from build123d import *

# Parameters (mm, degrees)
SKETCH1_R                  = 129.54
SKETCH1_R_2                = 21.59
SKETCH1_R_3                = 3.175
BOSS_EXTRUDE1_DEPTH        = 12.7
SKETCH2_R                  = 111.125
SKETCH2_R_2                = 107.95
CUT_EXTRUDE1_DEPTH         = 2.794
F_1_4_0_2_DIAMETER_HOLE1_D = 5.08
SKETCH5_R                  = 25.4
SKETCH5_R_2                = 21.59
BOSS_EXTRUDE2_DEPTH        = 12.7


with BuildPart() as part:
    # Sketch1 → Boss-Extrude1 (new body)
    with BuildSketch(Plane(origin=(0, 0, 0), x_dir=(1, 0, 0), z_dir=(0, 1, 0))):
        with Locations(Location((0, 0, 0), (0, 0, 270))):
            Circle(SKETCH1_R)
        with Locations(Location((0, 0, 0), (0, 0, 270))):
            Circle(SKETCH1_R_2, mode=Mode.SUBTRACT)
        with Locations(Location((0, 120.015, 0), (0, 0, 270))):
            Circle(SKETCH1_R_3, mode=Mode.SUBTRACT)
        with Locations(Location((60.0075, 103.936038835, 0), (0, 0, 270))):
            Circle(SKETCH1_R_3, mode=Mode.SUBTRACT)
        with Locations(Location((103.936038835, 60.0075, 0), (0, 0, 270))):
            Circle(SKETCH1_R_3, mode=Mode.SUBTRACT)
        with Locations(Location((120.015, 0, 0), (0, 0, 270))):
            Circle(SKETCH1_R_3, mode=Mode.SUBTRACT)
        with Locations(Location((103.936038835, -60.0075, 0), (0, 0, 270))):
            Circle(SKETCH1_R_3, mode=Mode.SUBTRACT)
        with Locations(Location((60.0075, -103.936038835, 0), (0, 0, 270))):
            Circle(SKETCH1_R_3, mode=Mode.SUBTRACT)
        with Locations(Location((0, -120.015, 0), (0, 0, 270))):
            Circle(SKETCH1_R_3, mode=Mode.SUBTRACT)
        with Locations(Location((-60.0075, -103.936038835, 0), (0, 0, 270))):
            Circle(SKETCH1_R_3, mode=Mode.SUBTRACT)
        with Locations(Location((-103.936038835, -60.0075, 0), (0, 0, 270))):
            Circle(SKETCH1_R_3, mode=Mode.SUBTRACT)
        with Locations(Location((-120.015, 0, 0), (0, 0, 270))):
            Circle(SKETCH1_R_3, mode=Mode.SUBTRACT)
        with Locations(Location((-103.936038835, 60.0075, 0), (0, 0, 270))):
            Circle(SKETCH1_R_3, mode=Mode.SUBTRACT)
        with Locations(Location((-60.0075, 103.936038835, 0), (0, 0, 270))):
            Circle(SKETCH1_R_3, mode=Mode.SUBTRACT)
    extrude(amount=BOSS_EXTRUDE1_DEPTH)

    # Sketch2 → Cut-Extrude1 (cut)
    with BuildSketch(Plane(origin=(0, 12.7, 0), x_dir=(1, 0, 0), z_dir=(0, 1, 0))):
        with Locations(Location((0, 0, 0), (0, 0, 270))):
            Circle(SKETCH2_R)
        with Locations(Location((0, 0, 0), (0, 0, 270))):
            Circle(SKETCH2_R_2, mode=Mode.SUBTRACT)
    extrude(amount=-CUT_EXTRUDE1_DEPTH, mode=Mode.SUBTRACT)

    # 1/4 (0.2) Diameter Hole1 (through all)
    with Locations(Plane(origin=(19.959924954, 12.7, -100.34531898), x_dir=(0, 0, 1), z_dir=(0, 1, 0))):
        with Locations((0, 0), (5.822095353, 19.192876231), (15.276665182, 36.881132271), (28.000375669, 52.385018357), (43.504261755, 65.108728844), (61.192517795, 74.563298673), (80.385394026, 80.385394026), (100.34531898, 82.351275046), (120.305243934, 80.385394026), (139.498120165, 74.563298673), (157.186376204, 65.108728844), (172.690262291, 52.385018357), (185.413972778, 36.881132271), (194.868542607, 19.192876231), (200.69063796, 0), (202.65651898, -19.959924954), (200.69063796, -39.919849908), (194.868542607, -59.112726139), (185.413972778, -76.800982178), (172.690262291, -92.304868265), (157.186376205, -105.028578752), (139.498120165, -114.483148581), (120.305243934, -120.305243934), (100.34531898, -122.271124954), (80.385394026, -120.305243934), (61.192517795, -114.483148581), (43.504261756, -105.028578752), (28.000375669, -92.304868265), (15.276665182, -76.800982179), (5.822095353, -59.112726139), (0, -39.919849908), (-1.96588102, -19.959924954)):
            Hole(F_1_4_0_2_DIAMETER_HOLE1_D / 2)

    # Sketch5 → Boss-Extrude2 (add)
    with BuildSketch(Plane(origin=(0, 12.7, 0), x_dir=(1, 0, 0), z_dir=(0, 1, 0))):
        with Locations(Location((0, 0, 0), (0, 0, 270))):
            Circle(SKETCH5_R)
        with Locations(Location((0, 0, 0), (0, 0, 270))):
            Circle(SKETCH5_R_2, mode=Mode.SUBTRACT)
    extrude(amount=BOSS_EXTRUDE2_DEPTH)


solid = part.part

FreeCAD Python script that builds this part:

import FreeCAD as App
import Part
import Sketcher
Q = App.Units.Quantity

doc = App.newDocument("Part")
params = doc.addObject("Spreadsheet::Sheet", "Params")
for row, (alias, value) in enumerate([
    ("sketch1_diameter", "10.2 in"),
    ("sketch1_diameter2", "1.7 in"),
    ("sketch1_diameter3", "0.25 in"),
    ("pad1_length", "0.5 in"),
    ("sketch2_diameter", "8.5 in"),
    ("sketch2_diameter2", "8.75 in"),
    ("pocket1_length", "0.11 in"),
    ("sketch3_diameter", "0.2 in"),
    ("hole_diameter", "0.2 in"),
    ("sketch4_diameter", "2 in"),
    ("sketch4_diameter2", "1.7 in"),
    ("pad2_length", "0.5 in"),
], start=1):
    params.set(f"A{row}", alias)
    params.set(f"B{row}", "=" + value)
    params.setAlias(f"B{row}", alias)

body = doc.addObject("PartDesign::Body", "Body")

sketch1 = body.newObject("Sketcher::SketchObject", "Sketch")
sketch1.AttachmentSupport = (doc.getObject("XZ_Plane"), [""])
sketch1.MapMode = "FlatFace"
sketch1.addGeometry(Part.Circle(App.Vector(0, 0, 0), App.Vector(0, 0, 1), 129.5), False)
sketch1.addGeometry(Part.Circle(App.Vector(-103.9, -60, 0), App.Vector(0, 0, 1), 3.2), False)
sketch1.addGeometry(Part.Circle(App.Vector(-60, -103.9, 0), App.Vector(0, 0, 1), 3.2), False)
sketch1.addGeometry(Part.Circle(App.Vector(0, -120, 0), App.Vector(0, 0, 1), 3.2), False)
sketch1.addGeometry(Part.Circle(App.Vector(-120, 0, 0), App.Vector(0, 0, 1), 3.2), False)
sketch1.addGeometry(Part.Circle(App.Vector(-103.9, 60, 0), App.Vector(0, 0, 1), 3.2), False)
sketch1.addGeometry(Part.Circle(App.Vector(-60, 103.9, 0), App.Vector(0, 0, 1), 3.2), False)
sketch1.addGeometry(Part.Circle(App.Vector(60, -103.9, 0), App.Vector(0, 0, 1), 3.2), False)
sketch1.addGeometry(Part.Circle(App.Vector(103.9, -60, 0), App.Vector(0, 0, 1), 3.2), False)
sketch1.addGeometry(Part.Circle(App.Vector(120, 0, 0), App.Vector(0, 0, 1), 3.2), False)
sketch1.addGeometry(Part.Circle(App.Vector(0, 0, 0), App.Vector(0, 0, 1), 21.6), False)
sketch1.addGeometry(Part.Circle(App.Vector(0, 120, 0), App.Vector(0, 0, 1), 3.2), False)
sketch1.addGeometry(Part.Circle(App.Vector(60, 103.9, 0), App.Vector(0, 0, 1), 3.2), False)
sketch1.addGeometry(Part.Circle(App.Vector(103.9, 60, 0), App.Vector(0, 0, 1), 3.2), False)
sketch1.addConstraint(Sketcher.Constraint("Coincident", 0, 3, -1, 1))
sketch1.addConstraint(Sketcher.Constraint("Coincident", 10, 3, -1, 1))
sketch1.addConstraint(Sketcher.Constraint("Equal", 1, 2))
sketch1.addConstraint(Sketcher.Constraint("Equal", 2, 3))
sketch1.addConstraint(Sketcher.Constraint("Equal", 3, 4))
sketch1.addConstraint(Sketcher.Constraint("Equal", 4, 5))
sketch1.addConstraint(Sketcher.Constraint("Equal", 5, 6))
sketch1.addConstraint(Sketcher.Constraint("Equal", 6, 7))
sketch1.addConstraint(Sketcher.Constraint("Equal", 7, 8))
sketch1.addConstraint(Sketcher.Constraint("Equal", 8, 9))
sketch1.addConstraint(Sketcher.Constraint("Equal", 9, 11))
sketch1.addConstraint(Sketcher.Constraint("Equal", 11, 12))
sketch1.addConstraint(Sketcher.Constraint("Equal", 12, 13))
sketch1.addConstraint(Sketcher.Constraint("Symmetric", 6, 3, 7, 3, -1, 1))
sketch1.addConstraint(Sketcher.Constraint("Symmetric", 5, 3, 8, 3, -1, 1))
sketch1.addConstraint(Sketcher.Constraint("Symmetric", 4, 3, 9, 3, -1, 1))
sketch1.addConstraint(Sketcher.Constraint("Symmetric", 3, 3, 11, 3, -1, 1))
sketch1.addConstraint(Sketcher.Constraint("Symmetric", 2, 3, 12, 3, -1, 1))
sketch1.addConstraint(Sketcher.Constraint("Symmetric", 1, 3, 13, 3, -1, 1))
sketch1.addConstraint(Sketcher.Constraint("Symmetric", 2, 3, 7, 3, -2))
sketch1.addConstraint(Sketcher.Constraint("Symmetric", 1, 3, 8, 3, -2))
sketch1.addConstraint(Sketcher.Constraint("PointOnObject", 3, 3, -2))
sketch1.addConstraint(Sketcher.Constraint("PointOnObject", 4, 3, -1))
sketch1.addConstraint(Sketcher.Constraint("Diameter", 0, Q("10.2 in")))
sketch1.addConstraint(Sketcher.Constraint("Diameter", 10, Q("1.7 in")))
sketch1.addConstraint(Sketcher.Constraint("Diameter", 1, Q("0.25 in")))
sketch1.addConstraint(Sketcher.Constraint("DistanceY", 3, 3, -1, 1, Q("4.725 in")))
sketch1.addConstraint(Sketcher.Constraint("DistanceX", 4, 3, -1, 1, Q("4.725 in")))
sketch1.addConstraint(Sketcher.Constraint("DistanceY", 1, 3, 5, 3, Q("4.725 in")))
sketch1.addConstraint(Sketcher.Constraint("DistanceX", 2, 3, 7, 3, Q("4.725 in")))
sketch1.addConstraint(Sketcher.Constraint("DistanceX", 1, 3, -1, 1, 103.936039))
sketch1.addConstraint(Sketcher.Constraint("DistanceY", 2, 3, -1, 1, 103.936039))
sketch1.setExpression("Constraints[23]", "Params.sketch1_diameter")
sketch1.setExpression("Constraints[24]", "Params.sketch1_diameter2")
sketch1.setExpression("Constraints[25]", "Params.sketch1_diameter3")
pad1 = body.newObject("PartDesign::Pad", "Pad")
pad1.Profile = sketch1
pad1.setExpression("Length", "Params.pad1_length")
pad1.Reversed = True

sketch2 = body.newObject("Sketcher::SketchObject", "Sketch001")
sketch2.AttachmentSupport = (doc.getObject("XZ_Plane"), [""])
sketch2.MapMode = "FlatFace"
sketch2.AttachmentOffset = App.Placement(App.Vector(0, 0, -0.5 * 25.4), App.Rotation())
sketch2.addGeometry(Part.Circle(App.Vector(0, 0, 0), App.Vector(0, 0, 1), 111), False)
sketch2.addGeometry(Part.Circle(App.Vector(0, 0, 0), App.Vector(0, 0, 1), 108), False)
sketch2.addConstraint(Sketcher.Constraint("Coincident", 0, 3, -1, 1))
sketch2.addConstraint(Sketcher.Constraint("Coincident", 1, 3, -1, 1))
sketch2.addConstraint(Sketcher.Constraint("Diameter", 1, Q("8.5 in")))
sketch2.addConstraint(Sketcher.Constraint("Diameter", 0, Q("8.75 in")))
sketch2.setExpression("Constraints[2]", "Params.sketch2_diameter")
sketch2.setExpression("Constraints[3]", "Params.sketch2_diameter2")
pocket1 = body.newObject("PartDesign::Pocket", "Pocket")
pocket1.Profile = sketch2
pocket1.setExpression("Length", "Params.pocket1_length")
pocket1.Reversed = True

sketch3 = body.newObject("Sketcher::SketchObject", "Sketch002")
sketch3.AttachmentSupport = (doc.getObject("XZ_Plane"), [""])
sketch3.MapMode = "FlatFace"
sketch3.AttachmentOffset = App.Placement(App.Vector(0, 0, -0.5 * 25.4), App.Rotation())
sketch3.addGeometry(Part.Circle(App.Vector(20, -100.3, 0), App.Vector(0, 0, 1), 2.5), False)
sketch3.addGeometry(Part.Circle(App.Vector(39.2, -94.5, 0), App.Vector(0, 0, 1), 2.5), False)
sketch3.addGeometry(Part.Circle(App.Vector(56.8, -85.1, 0), App.Vector(0, 0, 1), 2.5), False)
sketch3.addGeometry(Part.Circle(App.Vector(72.3, -72.3, 0), App.Vector(0, 0, 1), 2.5), False)
sketch3.addGeometry(Part.Circle(App.Vector(85.1, -56.8, 0), App.Vector(0, 0, 1), 2.5), False)
sketch3.addGeometry(Part.Circle(App.Vector(94.5, -39.2, 0), App.Vector(0, 0, 1), 2.5), False)
sketch3.addGeometry(Part.Circle(App.Vector(100.3, -20, 0), App.Vector(0, 0, 1), 2.5), False)
sketch3.addGeometry(Part.Circle(App.Vector(102.3, 0, 0), App.Vector(0, 0, 1), 2.5), False)
sketch3.addGeometry(Part.Circle(App.Vector(100.3, 20, 0), App.Vector(0, 0, 1), 2.5), False)
sketch3.addGeometry(Part.Circle(App.Vector(94.5, 39.2, 0), App.Vector(0, 0, 1), 2.5), False)
sketch3.addGeometry(Part.Circle(App.Vector(85.1, 56.8, 0), App.Vector(0, 0, 1), 2.5), False)
sketch3.addGeometry(Part.Circle(App.Vector(72.3, 72.3, 0), App.Vector(0, 0, 1), 2.5), False)
sketch3.addGeometry(Part.Circle(App.Vector(56.8, 85.1, 0), App.Vector(0, 0, 1), 2.5), False)
sketch3.addGeometry(Part.Circle(App.Vector(39.2, 94.5, 0), App.Vector(0, 0, 1), 2.5), False)
sketch3.addGeometry(Part.Circle(App.Vector(20, 100.3, 0), App.Vector(0, 0, 1), 2.5), False)
sketch3.addGeometry(Part.Circle(App.Vector(0, 102.3, 0), App.Vector(0, 0, 1), 2.5), False)
sketch3.addGeometry(Part.Circle(App.Vector(-20, 100.3, 0), App.Vector(0, 0, 1), 2.5), False)
sketch3.addGeometry(Part.Circle(App.Vector(-39.2, 94.5, 0), App.Vector(0, 0, 1), 2.5), False)
sketch3.addGeometry(Part.Circle(App.Vector(-56.8, 85.1, 0), App.Vector(0, 0, 1), 2.5), False)
sketch3.addGeometry(Part.Circle(App.Vector(-72.3, 72.3, 0), App.Vector(0, 0, 1), 2.5), False)
sketch3.addGeometry(Part.Circle(App.Vector(-85.1, 56.8, 0), App.Vector(0, 0, 1), 2.5), False)
sketch3.addGeometry(Part.Circle(App.Vector(-94.5, 39.2, 0), App.Vector(0, 0, 1), 2.5), False)
sketch3.addGeometry(Part.Circle(App.Vector(-100.3, 20, 0), App.Vector(0, 0, 1), 2.5), False)
sketch3.addGeometry(Part.Circle(App.Vector(-102.3, 0, 0), App.Vector(0, 0, 1), 2.5), False)
sketch3.addGeometry(Part.Circle(App.Vector(-100.3, -20, 0), App.Vector(0, 0, 1), 2.5), False)
sketch3.addGeometry(Part.Circle(App.Vector(-94.5, -39.2, 0), App.Vector(0, 0, 1), 2.5), False)
sketch3.addGeometry(Part.Circle(App.Vector(-85.1, -56.8, 0), App.Vector(0, 0, 1), 2.5), False)
sketch3.addGeometry(Part.Circle(App.Vector(-72.3, -72.3, 0), App.Vector(0, 0, 1), 2.5), False)
sketch3.addGeometry(Part.Circle(App.Vector(-56.8, -85.1, 0), App.Vector(0, 0, 1), 2.5), False)
sketch3.addGeometry(Part.Circle(App.Vector(-39.2, -94.5, 0), App.Vector(0, 0, 1), 2.5), False)
sketch3.addGeometry(Part.Circle(App.Vector(-20, -100.3, 0), App.Vector(0, 0, 1), 2.5), False)
sketch3.addGeometry(Part.Circle(App.Vector(0, -102.3, 0), App.Vector(0, 0, 1), 2.5), False)
sketch3.addConstraint(Sketcher.Constraint("Equal", 0, 1))
sketch3.addConstraint(Sketcher.Constraint("Equal", 1, 2))
sketch3.addConstraint(Sketcher.Constraint("Equal", 2, 3))
sketch3.addConstraint(Sketcher.Constraint("Equal", 3, 4))
sketch3.addConstraint(Sketcher.Constraint("Equal", 4, 5))
sketch3.addConstraint(Sketcher.Constraint("Equal", 5, 6))
sketch3.addConstraint(Sketcher.Constraint("Equal", 6, 7))
sketch3.addConstraint(Sketcher.Constraint("Equal", 7, 8))
sketch3.addConstraint(Sketcher.Constraint("Equal", 8, 9))
sketch3.addConstraint(Sketcher.Constraint("Equal", 9, 10))
sketch3.addConstraint(Sketcher.Constraint("Equal", 10, 11))
sketch3.addConstraint(Sketcher.Constraint("Equal", 11, 12))
sketch3.addConstraint(Sketcher.Constraint("Equal", 12, 13))
sketch3.addConstraint(Sketcher.Constraint("Equal", 13, 14))
sketch3.addConstraint(Sketcher.Constraint("Equal", 14, 15))
sketch3.addConstraint(Sketcher.Constraint("Equal", 15, 16))
sketch3.addConstraint(Sketcher.Constraint("Equal", 16, 17))
sketch3.addConstraint(Sketcher.Constraint("Equal", 17, 18))
sketch3.addConstraint(Sketcher.Constraint("Equal", 18, 19))
sketch3.addConstraint(Sketcher.Constraint("Equal", 19, 20))
sketch3.addConstraint(Sketcher.Constraint("Equal", 20, 21))
sketch3.addConstraint(Sketcher.Constraint("Equal", 21, 22))
sketch3.addConstraint(Sketcher.Constraint("Equal", 22, 23))
sketch3.addConstraint(Sketcher.Constraint("Equal", 23, 24))
sketch3.addConstraint(Sketcher.Constraint("Equal", 24, 25))
sketch3.addConstraint(Sketcher.Constraint("Equal", 25, 26))
sketch3.addConstraint(Sketcher.Constraint("Equal", 26, 27))
sketch3.addConstraint(Sketcher.Constraint("Equal", 27, 28))
sketch3.addConstraint(Sketcher.Constraint("Equal", 28, 29))
sketch3.addConstraint(Sketcher.Constraint("Equal", 29, 30))
sketch3.addConstraint(Sketcher.Constraint("Equal", 30, 31))
sketch3.addConstraint(Sketcher.Constraint("Symmetric", 0, 3, 16, 3, -1, 1))
sketch3.addConstraint(Sketcher.Constraint("Symmetric", 1, 3, 17, 3, -1, 1))
sketch3.addConstraint(Sketcher.Constraint("Symmetric", 2, 3, 18, 3, -1, 1))
sketch3.addConstraint(Sketcher.Constraint("Symmetric", 3, 3, 19, 3, -1, 1))
sketch3.addConstraint(Sketcher.Constraint("Symmetric", 4, 3, 20, 3, -1, 1))
sketch3.addConstraint(Sketcher.Constraint("Symmetric", 5, 3, 21, 3, -1, 1))
sketch3.addConstraint(Sketcher.Constraint("Symmetric", 6, 3, 22, 3, -1, 1))
sketch3.addConstraint(Sketcher.Constraint("Symmetric", 7, 3, 23, 3, -1, 1))
sketch3.addConstraint(Sketcher.Constraint("Symmetric", 8, 3, 24, 3, -1, 1))
sketch3.addConstraint(Sketcher.Constraint("Symmetric", 9, 3, 25, 3, -1, 1))
sketch3.addConstraint(Sketcher.Constraint("Symmetric", 10, 3, 26, 3, -1, 1))
sketch3.addConstraint(Sketcher.Constraint("Symmetric", 11, 3, 27, 3, -1, 1))
sketch3.addConstraint(Sketcher.Constraint("Symmetric", 12, 3, 28, 3, -1, 1))
sketch3.addConstraint(Sketcher.Constraint("Symmetric", 13, 3, 29, 3, -1, 1))
sketch3.addConstraint(Sketcher.Constraint("Symmetric", 14, 3, 30, 3, -1, 1))
sketch3.addConstraint(Sketcher.Constraint("Symmetric", 15, 3, 31, 3, -1, 1))
sketch3.addConstraint(Sketcher.Constraint("Symmetric", 14, 3, 16, 3, -2))
sketch3.addConstraint(Sketcher.Constraint("Symmetric", 13, 3, 17, 3, -2))
sketch3.addConstraint(Sketcher.Constraint("Symmetric", 12, 3, 18, 3, -2))
sketch3.addConstraint(Sketcher.Constraint("Symmetric", 11, 3, 19, 3, -2))
sketch3.addConstraint(Sketcher.Constraint("Symmetric", 10, 3, 20, 3, -2))
sketch3.addConstraint(Sketcher.Constraint("Symmetric", 9, 3, 21, 3, -2))
sketch3.addConstraint(Sketcher.Constraint("Symmetric", 8, 3, 22, 3, -2))
sketch3.addConstraint(Sketcher.Constraint("PointOnObject", 7, 3, -1))
sketch3.addConstraint(Sketcher.Constraint("PointOnObject", 15, 3, -2))
sketch3.addConstraint(Sketcher.Constraint("Diameter", 0, Q("0.2 in")))
sketch3.addConstraint(Sketcher.Constraint("DistanceX", -1, 1, 7, 3, Q("4.028 in")))
sketch3.addConstraint(Sketcher.Constraint("DistanceY", -1, 1, 15, 3, Q("4.028 in")))
sketch3.addConstraint(Sketcher.Constraint("DistanceX", -1, 1, 1, 3, 39.152801))
sketch3.addConstraint(Sketcher.Constraint("DistanceY", 5, 3, -1, 1, 39.152801))
sketch3.addConstraint(Sketcher.Constraint("DistanceX", 0, 3, 5, 3, 74.563299))
sketch3.addConstraint(Sketcher.Constraint("DistanceY", 1, 3, 6, 3, 74.563299))
sketch3.addConstraint(Sketcher.Constraint("DistanceY", 0, 3, -1, 1, 100.345319))
sketch3.addConstraint(Sketcher.Constraint("DistanceX", -1, 1, 6, 3, 100.345319))
sketch3.addConstraint(Sketcher.Constraint("DistanceY", 1, 3, 2, 3, 9.45457))
sketch3.addConstraint(Sketcher.Constraint("DistanceY", 2, 3, 3, 3, 12.72371))
sketch3.addConstraint(Sketcher.Constraint("DistanceX", 0, 3, 3, 3, 52.385018))
sketch3.addConstraint(Sketcher.Constraint("DistanceX", 3, 3, 4, 3, 12.72371))
sketch3.addConstraint(Sketcher.Constraint("DistanceY", 0, 3, 4, 3, 43.504262))
sketch3.addConstraint(Sketcher.Constraint("DistanceX", 2, 3, 6, 3, 43.504262))
sketch3.addConstraint(Sketcher.Constraint("DistanceY", 6, 3, 8, 3, 39.91985))
sketch3.addConstraint(Sketcher.Constraint("DistanceX", 16, 3, 14, 3, 39.91985))
sketch3.setExpression("Constraints[56]", "Params.sketch3_diameter")
doc.recompute()
hole = body.newObject("PartDesign::Hole", "Hole")
hole.Profile = sketch3
hole.ThreadType = "None"
hole.setExpression("Diameter", "Params.hole_diameter")
hole.DepthType = "ThroughAll"
hole.Reversed = True

sketch4 = body.newObject("Sketcher::SketchObject", "Sketch003")
sketch4.AttachmentSupport = (doc.getObject("XZ_Plane"), [""])
sketch4.MapMode = "FlatFace"
sketch4.AttachmentOffset = App.Placement(App.Vector(0, 0, -0.5 * 25.4), App.Rotation())
sketch4.addGeometry(Part.Circle(App.Vector(0, 0, 0), App.Vector(0, 0, 1), 25), False)
sketch4.addGeometry(Part.Circle(App.Vector(0, 0, 0), App.Vector(0, 0, 1), 22), False)
sketch4.addConstraint(Sketcher.Constraint("Coincident", 0, 3, -1, 1))
sketch4.addConstraint(Sketcher.Constraint("Coincident", 1, 3, -1, 1))
sketch4.addConstraint(Sketcher.Constraint("Diameter", 0, Q("2 in")))
sketch4.addConstraint(Sketcher.Constraint("Diameter", 1, Q("1.7 in")))
sketch4.setExpression("Constraints[2]", "Params.sketch4_diameter")
sketch4.setExpression("Constraints[3]", "Params.sketch4_diameter2")
pad2 = body.newObject("PartDesign::Pad", "Pad001")
pad2.Profile = sketch4
pad2.setExpression("Length", "Params.pad2_length")
pad2.Reversed = True

doc.recompute()
